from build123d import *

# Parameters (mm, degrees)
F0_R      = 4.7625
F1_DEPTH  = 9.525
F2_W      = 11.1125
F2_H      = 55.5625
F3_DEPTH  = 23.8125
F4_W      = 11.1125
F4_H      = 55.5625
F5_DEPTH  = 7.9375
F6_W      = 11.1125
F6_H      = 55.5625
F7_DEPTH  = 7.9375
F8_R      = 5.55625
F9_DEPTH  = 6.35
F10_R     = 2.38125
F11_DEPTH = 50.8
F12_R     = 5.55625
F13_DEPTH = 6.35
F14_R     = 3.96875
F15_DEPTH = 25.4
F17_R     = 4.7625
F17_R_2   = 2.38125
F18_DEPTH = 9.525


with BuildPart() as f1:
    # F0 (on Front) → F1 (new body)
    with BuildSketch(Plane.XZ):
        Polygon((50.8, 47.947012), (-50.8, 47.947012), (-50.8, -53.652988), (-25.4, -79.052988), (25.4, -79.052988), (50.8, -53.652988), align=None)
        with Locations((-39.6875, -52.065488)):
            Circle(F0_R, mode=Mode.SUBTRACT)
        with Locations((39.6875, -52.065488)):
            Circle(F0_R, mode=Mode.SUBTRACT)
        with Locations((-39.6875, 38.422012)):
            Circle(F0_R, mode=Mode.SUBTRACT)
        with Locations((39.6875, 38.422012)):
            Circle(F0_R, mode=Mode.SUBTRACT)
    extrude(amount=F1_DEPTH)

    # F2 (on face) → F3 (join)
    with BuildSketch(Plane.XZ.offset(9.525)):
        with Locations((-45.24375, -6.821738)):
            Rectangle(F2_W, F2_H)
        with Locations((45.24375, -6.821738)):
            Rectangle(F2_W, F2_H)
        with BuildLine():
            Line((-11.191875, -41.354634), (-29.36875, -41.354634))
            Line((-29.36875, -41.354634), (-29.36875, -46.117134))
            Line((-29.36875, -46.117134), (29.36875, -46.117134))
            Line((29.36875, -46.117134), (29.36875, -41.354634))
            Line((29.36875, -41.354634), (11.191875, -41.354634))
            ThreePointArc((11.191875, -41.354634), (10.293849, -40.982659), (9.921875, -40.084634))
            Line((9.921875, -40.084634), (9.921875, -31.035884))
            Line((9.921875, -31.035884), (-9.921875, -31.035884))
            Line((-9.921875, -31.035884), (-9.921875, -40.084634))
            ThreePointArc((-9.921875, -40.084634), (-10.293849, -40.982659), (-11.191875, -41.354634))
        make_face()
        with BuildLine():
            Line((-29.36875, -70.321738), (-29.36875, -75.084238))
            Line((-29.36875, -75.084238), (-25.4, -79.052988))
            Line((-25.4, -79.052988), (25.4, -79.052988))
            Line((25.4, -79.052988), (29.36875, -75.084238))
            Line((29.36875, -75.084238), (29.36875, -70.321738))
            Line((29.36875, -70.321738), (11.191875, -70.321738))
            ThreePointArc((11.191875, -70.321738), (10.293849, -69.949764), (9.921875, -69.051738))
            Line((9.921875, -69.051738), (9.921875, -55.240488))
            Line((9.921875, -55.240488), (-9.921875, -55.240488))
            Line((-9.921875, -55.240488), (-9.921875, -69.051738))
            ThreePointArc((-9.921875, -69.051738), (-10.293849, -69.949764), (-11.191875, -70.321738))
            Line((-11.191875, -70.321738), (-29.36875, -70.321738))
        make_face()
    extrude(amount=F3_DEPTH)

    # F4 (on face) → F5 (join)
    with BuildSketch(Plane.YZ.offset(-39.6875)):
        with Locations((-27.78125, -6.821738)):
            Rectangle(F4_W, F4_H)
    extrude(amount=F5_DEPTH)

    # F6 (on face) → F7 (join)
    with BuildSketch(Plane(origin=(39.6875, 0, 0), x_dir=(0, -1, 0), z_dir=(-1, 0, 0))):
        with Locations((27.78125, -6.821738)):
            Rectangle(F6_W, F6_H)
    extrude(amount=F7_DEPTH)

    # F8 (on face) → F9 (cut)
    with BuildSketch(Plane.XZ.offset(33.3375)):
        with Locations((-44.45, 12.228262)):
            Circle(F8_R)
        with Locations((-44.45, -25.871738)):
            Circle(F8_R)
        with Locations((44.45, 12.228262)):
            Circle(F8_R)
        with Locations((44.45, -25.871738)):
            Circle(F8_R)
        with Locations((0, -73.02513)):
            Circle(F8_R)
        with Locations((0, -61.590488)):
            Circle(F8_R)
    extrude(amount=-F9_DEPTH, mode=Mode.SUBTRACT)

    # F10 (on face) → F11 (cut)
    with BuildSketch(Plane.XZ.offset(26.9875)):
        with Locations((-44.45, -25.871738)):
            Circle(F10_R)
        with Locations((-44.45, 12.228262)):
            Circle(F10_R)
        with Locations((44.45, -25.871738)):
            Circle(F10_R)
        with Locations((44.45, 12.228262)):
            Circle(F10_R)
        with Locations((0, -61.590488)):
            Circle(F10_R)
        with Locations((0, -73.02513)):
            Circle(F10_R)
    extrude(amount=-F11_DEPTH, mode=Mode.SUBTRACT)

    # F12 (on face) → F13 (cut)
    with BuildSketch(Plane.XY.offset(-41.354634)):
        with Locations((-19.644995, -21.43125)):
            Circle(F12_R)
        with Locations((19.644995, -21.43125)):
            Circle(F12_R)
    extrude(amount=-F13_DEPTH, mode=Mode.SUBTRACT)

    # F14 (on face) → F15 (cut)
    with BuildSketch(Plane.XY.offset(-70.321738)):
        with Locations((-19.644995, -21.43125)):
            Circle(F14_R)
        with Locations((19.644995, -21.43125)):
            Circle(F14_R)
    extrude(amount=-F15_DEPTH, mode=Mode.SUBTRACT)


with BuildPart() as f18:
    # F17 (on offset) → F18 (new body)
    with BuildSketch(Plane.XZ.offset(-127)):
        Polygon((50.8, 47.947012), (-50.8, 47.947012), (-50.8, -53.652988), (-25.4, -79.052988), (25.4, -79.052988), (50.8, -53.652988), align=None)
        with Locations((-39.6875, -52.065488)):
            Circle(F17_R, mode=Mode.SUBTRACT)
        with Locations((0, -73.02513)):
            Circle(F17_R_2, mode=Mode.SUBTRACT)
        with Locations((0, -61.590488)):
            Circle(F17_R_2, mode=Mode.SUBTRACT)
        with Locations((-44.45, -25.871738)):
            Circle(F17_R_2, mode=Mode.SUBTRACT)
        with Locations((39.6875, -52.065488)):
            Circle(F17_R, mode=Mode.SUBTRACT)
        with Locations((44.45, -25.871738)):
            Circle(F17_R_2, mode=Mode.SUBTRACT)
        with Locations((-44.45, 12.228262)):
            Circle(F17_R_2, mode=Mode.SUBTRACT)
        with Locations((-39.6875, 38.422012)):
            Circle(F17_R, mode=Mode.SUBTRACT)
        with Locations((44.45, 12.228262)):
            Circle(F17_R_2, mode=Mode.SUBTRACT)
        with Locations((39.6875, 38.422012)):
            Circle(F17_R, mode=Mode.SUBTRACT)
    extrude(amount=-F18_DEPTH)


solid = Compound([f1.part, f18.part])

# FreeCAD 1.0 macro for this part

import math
import FreeCAD as App
import Part
import Sketcher

V = App.Vector
Q = App.Units.Quantity

doc = App.newDocument("Part")
body = doc.addObject("PartDesign::Body", "Body")

sketch1 = body.newObject("Sketcher::SketchObject", "Sketch")
sketch1.AttachmentSupport = (doc.getObject("XZ_Plane"), [""])
sketch1.MapMode = "FlatFace"
sketch1.addGeometry([
    Part.LineSegment(V(50.8, 47.9, 0), V(-50.8, 47.9, 0)),
    Part.LineSegment(V(-50.8, 47.9, 0), V(-50.8, -53.7, 0)),
    Part.LineSegment(V(-50.8, -53.7, 0), V(-25.4, -79.1, 0)),
    Part.LineSegment(V(-25.4, -79.1, 0), V(25.4, -79.1, 0)),
    Part.LineSegment(V(25.4, -79.1, 0), V(50.8, -53.7, 0)),
    Part.LineSegment(V(50.8, -53.7, 0), V(50.8, 47.9, 0)),
    Part.Circle(V(-39.7, -52.1, 0), V(0, 0, 1), 4.8),
    Part.Circle(V(39.7, -52.1, 0), V(0, 0, 1), 4.8),
    Part.Circle(V(-39.7, 38.4, 0), V(0, 0, 1), 4.8),
    Part.Circle(V(39.7, 38.4, 0), V(0, 0, 1), 4.8),
], False)
sketch1.addConstraint([
    Sketcher.Constraint("Coincident", 0, 2, 1, 1),
    Sketcher.Constraint("Coincident", 1, 2, 2, 1),
    Sketcher.Constraint("Coincident", 2, 2, 3, 1),
    Sketcher.Constraint("Coincident", 3, 2, 4, 1),
    Sketcher.Constraint("Coincident", 4, 2, 5, 1),
    Sketcher.Constraint("Coincident", 5, 2, 0, 1),
    Sketcher.Constraint("Horizontal", 0),
    Sketcher.Constraint("Vertical", 1),
    Sketcher.Constraint("Horizontal", 3),
    Sketcher.Constraint("Vertical", 5),
    Sketcher.Constraint("Equal", 6, 7),
    Sketcher.Constraint("Equal", 7, 8),
    Sketcher.Constraint("Equal", 8, 9),
    Sketcher.Constraint("Symmetric", 6, 3, 7, 3, -2),
    Sketcher.Constraint("Symmetric", 8, 3, 9, 3, -2),
    Sketcher.Constraint("Symmetric", 1, 2, 4, 2, -2),
    Sketcher.Constraint("Perpendicular", 2, 4),
    Sketcher.Constraint("Vertical", 6, 3, 8, 3),
    Sketcher.Constraint("Equal", 0, 1),
    Sketcher.Constraint("Equal", 2, 4),
    Sketcher.Constraint("DistanceX", 0, 2, 0, 1, Q("4 in")),
    Sketcher.Constraint("DistanceX", 3, 1, 3, 2, Q("2 in")),
    Sketcher.Constraint("Diameter", 6, Q("0.375 in")),
    Sketcher.Constraint("DistanceX", 6, 3, -1, 1, Q("1.5625 in")),
    Sketcher.Constraint("DistanceY", 6, 3, 8, 3, Q("3.5625 in")),
    Sketcher.Constraint("DistanceY", 8, 3, 0, 2, Q("0.375 in")),
    Sketcher.Constraint("DistanceY", 6, 3, -1, 1, 52.065488),
])
pad1 = body.newObject("PartDesign::Pad", "Pad")
pad1.Profile = sketch1
pad1.Length = Q("0.375 in")

sketch2 = body.newObject("Sketcher::SketchObject", "Sketch001")
sketch2.AttachmentSupport = (doc.getObject("XZ_Plane"), [""])
sketch2.MapMode = "FlatFace"
sketch2.AttachmentOffset = App.Placement(V(0, 0, 0.375 * 25.4), App.Rotation())
sketch2.addGeometry([
    Part.LineSegment(V(-50.8, 21, 0), V(-50.8, -34.6, 0)),
    Part.LineSegment(V(-50.8, -34.6, 0), V(-39.7, -34.6, 0)),
    Part.LineSegment(V(-39.7, -34.6, 0), V(-39.7, 21, 0)),
    Part.LineSegment(V(-39.7, 21, 0), V(-50.8, 21, 0)),
    Part.LineSegment(V(39.7, 21, 0), V(39.7, -34.6, 0)),
    Part.LineSegment(V(39.7, -34.6, 0), V(50.8, -34.6, 0)),
    Part.LineSegment(V(50.8, -34.6, 0), V(50.8, 21, 0)),
    Part.LineSegment(V(50.8, 21, 0), V(39.7, 21, 0)),
    Part.LineSegment(V(-11.2, -41.4, 0), V(-29.4, -41.4, 0)),
    Part.LineSegment(V(-29.4, -41.4, 0), V(-29.4, -46.1, 0)),
    Part.LineSegment(V(-29.4, -46.1, 0), V(29.4, -46.1, 0)),
    Part.LineSegment(V(29.4, -46.1, 0), V(29.4, -41.4, 0)),
    Part.LineSegment(V(29.4, -41.4, 0), V(11.2, -41.4, 0)),
    Part.ArcOfCircle(Part.Circle(V(11.2, -40.1, 0), V(0, 0, 1), 1.3), math.radians(-180), math.radians(-90)),
    Part.LineSegment(V(9.9, -40.1, 0), V(9.9, -31, 0)),
    Part.LineSegment(V(9.9, -31, 0), V(-9.9, -31, 0)),
    Part.LineSegment(V(-9.9, -31, 0), V(-9.9, -40.1, 0)),
    Part.ArcOfCircle(Part.Circle(V(-11.2, -40.1, 0), V(0, 0, 1), 1.3), math.radians(-90), math.radians(0)),
    Part.LineSegment(V(-29.4, -70.3, 0), V(-29.4, -75.1, 0)),
    Part.LineSegment(V(-29.4, -75.1, 0), V(-25.4, -79.1, 0)),
    Part.LineSegment(V(-25.4, -79.1, 0), V(25.4, -79.1, 0)),
    Part.LineSegment(V(25.4, -79.1, 0), V(29.4, -75.1, 0)),
    Part.LineSegment(V(29.4, -75.1, 0), V(29.4, -70.3, 0)),
    Part.LineSegment(V(29.4, -70.3, 0), V(11.2, -70.3, 0)),
    Part.ArcOfCircle(Part.Circle(V(11.2, -69.1, 0), V(0, 0, 1), 1.3), math.radians(180), math.radians(270)),
    Part.LineSegment(V(9.9, -69.1, 0), V(9.9, -55.2, 0)),
    Part.LineSegment(V(9.9, -55.2, 0), V(-9.9, -55.2, 0)),
    Part.LineSegment(V(-9.9, -55.2, 0), V(-9.9, -69.1, 0)),
    Part.ArcOfCircle(Part.Circle(V(-11.2, -69.1, 0), V(0, 0, 1), 1.3), math.radians(-90), math.radians(0)),
    Part.LineSegment(V(-11.2, -70.3, 0), V(-29.4, -70.3, 0)),
], False)
sketch2.addConstraint([
    Sketcher.Constraint("Coincident", 0, 2, 1, 1),
    Sketcher.Constraint("Coincident", 1, 2, 2, 1),
    Sketcher.Constraint("Coincident", 2, 2, 3, 1),
    Sketcher.Constraint("Coincident", 3, 2, 0, 1),
    Sketcher.Constraint("Coincident", 4, 2, 5, 1),
    Sketcher.Constraint("Coincident", 5, 2, 6, 1),
    Sketcher.Constraint("Coincident", 6, 2, 7, 1),
    Sketcher.Constraint("Coincident", 7, 2, 4, 1),
    Sketcher.Constraint("Coincident", 8, 2, 9, 1),
    Sketcher.Constraint("Coincident", 9, 2, 10, 1),
    Sketcher.Constraint("Coincident", 10, 2, 11, 1),
    Sketcher.Constraint("Coincident", 11, 2, 12, 1),
    Sketcher.Constraint("Tangent", 12, 2, 13, 2),
    Sketcher.Constraint("Tangent", 13, 1, 14, 1),
    Sketcher.Constraint("Coincident", 14, 2, 15, 1),
    Sketcher.Constraint("Coincident", 15, 2, 16, 1),
    Sketcher.Constraint("Tangent", 16, 2, 17, 2),
    Sketcher.Constraint("Tangent", 17, 1, 8, 1),
    Sketcher.Constraint("Coincident", 18, 2, 19, 1),
    Sketcher.Constraint("Coincident", 19, 2, 20, 1),
    Sketcher.Constraint("Coincident", 20, 2, 21, 1),
    Sketcher.Constraint("Coincident", 21, 2, 22, 1),
    Sketcher.Constraint("Coincident", 22, 2, 23, 1),
    Sketcher.Constraint("Tangent", 23, 2, 24, 2),
    Sketcher.Constraint("Tangent", 24, 1, 25, 1),
    Sketcher.Constraint("Coincident", 25, 2, 26, 1),
    Sketcher.Constraint("Coincident", 26, 2, 27, 1),
    Sketcher.Constraint("Tangent", 27, 2, 28, 2),
    Sketcher.Constraint("Tangent", 28, 1, 29, 1),
    Sketcher.Constraint("Coincident", 29, 2, 18, 1),
    Sketcher.Constraint("Vertical", 0),
    Sketcher.Constraint("Horizontal", 1),
    Sketcher.Constraint("Vertical", 2),
    Sketcher.Constraint("Horizontal", 3),
    Sketcher.Constraint("Vertical", 4),
    Sketcher.Constraint("Horizontal", 5),
    Sketcher.Constraint("Vertical", 6),
    Sketcher.Constraint("Horizontal", 7),
    Sketcher.Constraint("Horizontal", 8),
    Sketcher.Constraint("Vertical", 9),
    Sketcher.Constraint("Horizontal", 10),
    Sketcher.Constraint("Vertical", 11),
    Sketcher.Constraint("Horizontal", 12),
    Sketcher.Constraint("Vertical", 14),
    Sketcher.Constraint("Horizontal", 15),
    Sketcher.Constraint("Vertical", 16),
    Sketcher.Constraint("Vertical", 18),
    Sketcher.Constraint("Horizontal", 20),
    Sketcher.Constraint("Vertical", 22),
    Sketcher.Constraint("Horizontal", 23),
    Sketcher.Constraint("Vertical", 25),
    Sketcher.Constraint("Horizontal", 26),
    Sketcher.Constraint("Vertical", 27),
    Sketcher.Constraint("Horizontal", 29),
    Sketcher.Constraint("Equal", 13, 17),
    Sketcher.Constraint("Equal", 17, 24),
    Sketcher.Constraint("Equal", 24, 28),
    Sketcher.Constraint("Symmetric", 13, 3, 17, 3, -2),
    Sketcher.Constraint("Symmetric", 24, 3, 28, 3, -2),
    Sketcher.Constraint("Symmetric", 1, 2, 4, 2, -2),
    Sketcher.Constraint("Symmetric", 3, 2, 6, 2, -2),
    Sketcher.Constraint("Symmetric", 18, 2, 21, 2, -2),
    Sketcher.Constraint("Perpendicular", 19, 21),
    Sketcher.Constraint("Vertical", 13, 3, 24, 3),
    Sketcher.Constraint("Vertical", 9, 2, 18, 2),
    Sketcher.Constraint("Vertical", 11, 2, 21, 2),
    Sketcher.Constraint("Equal", 11, 18),
    Sketcher.Constraint("Equal", 19, 21),
    Sketcher.Constraint("DistanceX", 20, 1, 20, 2, Q("2 in")),
    Sketcher.Constraint("Radius", 13, Q("0.05 in")),
    Sketcher.Constraint("DistanceX", 0, 2, -1, 1, Q("2 in")),
    Sketcher.Constraint("DistanceX", 1, 1, 1, 2, Q("0.4375 in")),
    Sketcher.Constraint("DistanceX", 10, 1, 10, 2, Q("2.3125 in")),
    Sketcher.Constraint("DistanceX", 15, 2, 15, 1, Q("0.78125 in")),
    Sketcher.Constraint("DistanceY", 0, 2, 0, 1, Q("2.1875 in")),
    Sketcher.Constraint("DistanceY", 9, 2, 9, 1, Q("0.1875 in")),
    Sketcher.Constraint("DistanceY", 12, 2, 14, 2, Q("0.40625 in")),
    Sketcher.Constraint("DistanceY", 23, 2, 25, 2, Q("0.59375 in")),
    Sketcher.Constraint("DistanceY", 24, 3, -1, 1, 69.051739),
    Sketcher.Constraint("DistanceY", 0, 2, -1, 1, 34.602988),
    Sketcher.Constraint("DistanceY", 13, 3, -1, 1, 40.084634),
])
pad2 = body.newObject("PartDesign::Pad", "Pad001")
pad2.Profile = sketch2
pad2.Length = Q("0.9375 in")

sketch3 = body.newObject("Sketcher::SketchObject", "Sketch002")
sketch3.AttachmentSupport = (doc.getObject("YZ_Plane"), [""])
sketch3.MapMode = "FlatFace"
sketch3.AttachmentOffset = App.Placement(V(0, 0, -1.5625 * 25.4), App.Rotation())
sketch3.addGeometry([
    Part.LineSegment(V(-33, 21, 0), V(-33, -35, 0)),
    Part.LineSegment(V(-33, -35, 0), V(-22, -35, 0)),
    Part.LineSegment(V(-22, -35, 0), V(-22, 21, 0)),
    Part.LineSegment(V(-22, 21, 0), V(-33, 21, 0)),
], False)
sketch3.addConstraint([
    Sketcher.Constraint("Coincident", 0, 2, 1, 1),
    Sketcher.Constraint("Coincident", 1, 2, 2, 1),
    Sketcher.Constraint("Coincident", 2, 2, 3, 1),
    Sketcher.Constraint("Coincident", 3, 2, 0, 1),
    Sketcher.Constraint("Vertical", 0),
    Sketcher.Constraint("Horizontal", 1),
    Sketcher.Constraint("Vertical", 2),
    Sketcher.Constraint("Horizontal", 3),
    Sketcher.Constraint("DistanceX", 1, 1, 1, 2, Q("0.4375 in")),
    Sketcher.Constraint("DistanceY", 0, 2, 0, 1, Q("2.1875 in")),
    Sketcher.Constraint("DistanceX", 0, 2, -1, 1, Q("1.3125 in")),
    Sketcher.Constraint("DistanceY", 0, 2, -1, 1, 34.602988),
])
pad3 = body.newObject("PartDesign::Pad", "Pad002")
pad3.Profile = sketch3
pad3.Length = Q("0.3125 in")

sketch4 = body.newObject("Sketcher::SketchObject", "Sketch003")
sketch4.AttachmentSupport = (doc.getObject("YZ_Plane"), [""])
sketch4.MapMode = "FlatFace"
sketch4.AttachmentOffset = App.Placement(V(0, 0, 1.5625 * 25.4), App.Rotation())
sketch4.addGeometry([
    Part.LineSegment(V(-22, 21, 0), V(-22, -35, 0)),
    Part.LineSegment(V(-22, -35, 0), V(-33, -35, 0)),
    Part.LineSegment(V(-33, -35, 0), V(-33, 21, 0)),
    Part.LineSegment(V(-33, 21, 0), V(-22, 21, 0)),
], False)
sketch4.addConstraint([
    Sketcher.Constraint("Coincident", 0, 2, 1, 1),
    Sketcher.Constraint("Coincident", 1, 2, 2, 1),
    Sketcher.Constraint("Coincident", 2, 2, 3, 1),
    Sketcher.Constraint("Coincident", 3, 2, 0, 1),
    Sketcher.Constraint("Vertical", 0),
    Sketcher.Constraint("Horizontal", 1),
    Sketcher.Constraint("Vertical", 2),
    Sketcher.Constraint("Horizontal", 3),
    Sketcher.Constraint("DistanceX", 1, 2, 1, 1, Q("0.4375 in")),
    Sketcher.Constraint("DistanceY", 0, 2, 0, 1, Q("2.1875 in")),
    Sketcher.Constraint("DistanceX", 0, 2, -1, 1, Q("0.875 in")),
    Sketcher.Constraint("DistanceY", 0, 2, -1, 1, 34.602988),
])
pad4 = body.newObject("PartDesign::Pad", "Pad003")
pad4.Profile = sketch4
pad4.Length = Q("0.3125 in")
pad4.Reversed = True

sketch5 = body.newObject("Sketcher::SketchObject", "Sketch004")
sketch5.AttachmentSupport = (doc.getObject("XZ_Plane"), [""])
sketch5.MapMode = "FlatFace"
sketch5.AttachmentOffset = App.Placement(V(0, 0, 1.3125 * 25.4), App.Rotation())
sketch5.addGeometry([
    Part.Circle(V(-44, 12, 0), V(0, 0, 1), 6),
    Part.Circle(V(-44, -26, 0), V(0, 0, 1), 6),
    Part.Circle(V(44, 12, 0), V(0, 0, 1), 6),
    Part.Circle(V(44, -26, 0), V(0, 0, 1), 6),
    Part.Circle(V(0, -73, 0), V(0, 0, 1), 6),
    Part.Circle(V(0, -62, 0), V(0, 0, 1), 6),
], False)
sketch5.addConstraint([
    Sketcher.Constraint("Equal", 0, 1),
    Sketcher.Constraint("Equal", 1, 2),
    Sketcher.Constraint("Equal", 2, 3),
    Sketcher.Constraint("Equal", 3, 4),
    Sketcher.Constraint("Equal", 4, 5),
    Sketcher.Constraint("Symmetric", 0, 3, 2, 3, -2),
    Sketcher.Constraint("Symmetric", 1, 3, 3, 3, -2),
    Sketcher.Constraint("PointOnObject", 4, 3, -2),
    Sketcher.Constraint("PointOnObject", 5, 3, -2),
    Sketcher.Constraint("Vertical", 0, 3, 1, 3),
    Sketcher.Constraint("Diameter", 0, Q("0.4375 in")),
    Sketcher.Constraint("DistanceY", 1, 3, 0, 3, Q("1.5 in")),
    Sketcher.Constraint("DistanceX", 0, 3, 2, 3, Q("3.5 in")),
    Sketcher.Constraint("DistanceY", 5, 3, 1, 3, Q("1.40625 in")),
    Sketcher.Constraint("DistanceY", 1, 3, -1, 1, 25.871738),
    Sketcher.Constraint("DistanceY", 4, 3, -1, 1, 73.02513),
])
pocket1 = body.newObject("PartDesign::Pocket", "Pocket")
pocket1.Profile = sketch5
pocket1.Length = Q("0.25 in")

sketch6 = body.newObject("Sketcher::SketchObject", "Sketch005")
sketch6.AttachmentSupport = (doc.getObject("XZ_Plane"), [""])
sketch6.MapMode = "FlatFace"
sketch6.AttachmentOffset = App.Placement(V(0, 0, 1.0625 * 25.4), App.Rotation())
sketch6.addGeometry([
    Part.Circle(V(-44.5, -25.9, 0), V(0, 0, 1), 2.4),
    Part.Circle(V(-44.5, 12.2, 0), V(0, 0, 1), 2.4),
    Part.Circle(V(44.5, -25.9, 0), V(0, 0, 1), 2.4),
    Part.Circle(V(44.5, 12.2, 0), V(0, 0, 1), 2.4),
    Part.Circle(V(0, -61.6, 0), V(0, 0, 1), 2.4),
    Part.Circle(V(0, -73, 0), V(0, 0, 1), 2.4),
], False)
sketch6.addConstraint([
    Sketcher.Constraint("Equal", 0, 1),
    Sketcher.Constraint("Equal", 1, 2),
    Sketcher.Constraint("Equal", 2, 3),
    Sketcher.Constraint("Equal", 3, 4),
    Sketcher.Constraint("Equal", 4, 5),
    Sketcher.Constraint("Symmetric", 0, 3, 2, 3, -2),
    Sketcher.Constraint("Symmetric", 1, 3, 3, 3, -2),
    Sketcher.Constraint("PointOnObject", 4, 3, -2),
    Sketcher.Constraint("PointOnObject", 5, 3, -2),
    Sketcher.Constraint("Vertical", 0, 3, 1, 3),
    Sketcher.Constraint("Diameter", 0, Q("0.1875 in")),
    Sketcher.Constraint("DistanceY", 0, 3, 1, 3, Q("1.5 in")),
    Sketcher.Constraint("DistanceX", 0, 3, 2, 3, Q("3.5 in")),
    Sketcher.Constraint("DistanceY", 4, 3, 0, 3, Q("1.40625 in")),
    Sketcher.Constraint("DistanceY", 0, 3, -1, 1, 25.871738),
    Sketcher.Constraint("DistanceY", 5, 3, -1, 1, 73.02513),
])
pocket2 = body.newObject("PartDesign::Pocket", "Pocket001")
pocket2.Profile = sketch6
pocket2.Length = Q("2 in")

sketch7 = body.newObject("Sketcher::SketchObject", "Sketch006")
sketch7.AttachmentSupport = (doc.getObject("XY_Plane"), [""])
sketch7.MapMode = "FlatFace"
sketch7.AttachmentOffset = App.Placement(V(0, 0, -41.354634), App.Rotation())
sketch7.addGeometry([
    Part.Circle(V(-20, -21, 0), V(0, 0, 1), 6),
    Part.Circle(V(20, -21, 0), V(0, 0, 1), 6),
], False)
sketch7.addConstraint([
    Sketcher.Constraint("Equal", 0, 1),
    Sketcher.Constraint("Symmetric", 0, 3, 1, 3, -2),
    Sketcher.Constraint("Diameter", 0, Q("0.4375 in")),
    Sketcher.Constraint("DistanceY", 0, 3, -1, 1, Q("0.84375 in")),
    Sketcher.Constraint("DistanceX", 0, 3, 1, 3, 39.28999),
])
pocket3 = body.newObject("PartDesign::Pocket", "Pocket002")
pocket3.Profile = sketch7
pocket3.Length = Q("0.25 in")

sketch8 = body.newObject("Sketcher::SketchObject", "Sketch007")
sketch8.AttachmentSupport = (doc.getObject("XY_Plane"), [""])
sketch8.MapMode = "FlatFace"
sketch8.AttachmentOffset = App.Placement(V(0, 0, -70.321738), App.Rotation())
sketch8.addGeometry([
    Part.Circle(V(-19.6, -21.4, 0), V(0, 0, 1), 4),
    Part.Circle(V(19.6, -21.4, 0), V(0, 0, 1), 4),
], False)
sketch8.addConstraint([
    Sketcher.Constraint("Equal", 0, 1),
    Sketcher.Constraint("Symmetric", 0, 3, 1, 3, -2),
    Sketcher.Constraint("Diameter", 0, Q("0.3125 in")),
    Sketcher.Constraint("DistanceY", 0, 3, -1, 1, Q("0.84375 in")),
    Sketcher.Constraint("DistanceX", 0, 3, 1, 3, 39.28999),
])
pocket4 = body.newObject("PartDesign::Pocket", "Pocket003")
pocket4.Profile = sketch8
pocket4.Length = Q("1 in")
body2 = doc.addObject("PartDesign::Body", "Body001")

sketch9 = body2.newObject("Sketcher::SketchObject", "Sketch008")
sketch9.AttachmentSupport = (doc.getObject("XZ_Plane001"), [""])
sketch9.MapMode = "FlatFace"
sketch9.AttachmentOffset = App.Placement(V(0, 0, -5 * 25.4), App.Rotation())
sketch9.addGeometry([
    Part.LineSegment(V(50.8, 47.9, 0), V(-50.8, 47.9, 0)),
    Part.LineSegment(V(-50.8, 47.9, 0), V(-50.8, -53.7, 0)),
    Part.LineSegment(V(-50.8, -53.7, 0), V(-25.4, -79.1, 0)),
    Part.LineSegment(V(-25.4, -79.1, 0), V(25.4, -79.1, 0)),
    Part.LineSegment(V(25.4, -79.1, 0), V(50.8, -53.7, 0)),
    Part.LineSegment(V(50.8, -53.7, 0), V(50.8, 47.9, 0)),
    Part.Circle(V(-39.7, -52.1, 0), V(0, 0, 1), 4.8),
    Part.Circle(V(-44.5, -25.9, 0), V(0, 0, 1), 2.4),
    Part.Circle(V(0, -73, 0), V(0, 0, 1), 2.4),
    Part.Circle(V(0, -61.6, 0), V(0, 0, 1), 2.4),
    Part.Circle(V(39.7, -52.1, 0), V(0, 0, 1), 4.8),
    Part.Circle(V(44.5, -25.9, 0), V(0, 0, 1), 2.4),
    Part.Circle(V(-44.5, 12.2, 0), V(0, 0, 1), 2.4),
    Part.Circle(V(-39.7, 38.4, 0), V(0, 0, 1), 4.8),
    Part.Circle(V(44.5, 12.2, 0), V(0, 0, 1), 2.4),
    Part.Circle(V(39.7, 38.4, 0), V(0, 0, 1), 4.8),
], False)
sketch9.addConstraint([
    Sketcher.Constraint("Coincident", 0, 2, 1, 1),
    Sketcher.Constraint("Coincident", 1, 2, 2, 1),
    Sketcher.Constraint("Coincident", 2, 2, 3, 1),
    Sketcher.Constraint("Coincident", 3, 2, 4, 1),
    Sketcher.Constraint("Coincident", 4, 2, 5, 1),
    Sketcher.Constraint("Coincident", 5, 2, 0, 1),
    Sketcher.Constraint("Horizontal", 0),
    Sketcher.Constraint("Vertical", 1),
    Sketcher.Constraint("Horizontal", 3),
    Sketcher.Constraint("Vertical", 5),
    Sketcher.Constraint("Equal", 7, 8),
    Sketcher.Constraint("Equal", 8, 9),
    Sketcher.Constraint("Equal", 6, 10),
    Sketcher.Constraint("Equal", 9, 11),
    Sketcher.Constraint("Equal", 11, 12),
    Sketcher.Constraint("Equal", 10, 13),
    Sketcher.Constraint("Equal", 12, 14),
    Sketcher.Constraint("Equal", 13, 15),
    Sketcher.Constraint("Symmetric", 6, 3, 10, 3, -2),
    Sketcher.Constraint("Symmetric", 7, 3, 11, 3, -2),
    Sketcher.Constraint("Symmetric", 12, 3, 14, 3, -2),
    Sketcher.Constraint("Symmetric", 13, 3, 15, 3, -2),
    Sketcher.Constraint("Symmetric", 1, 2, 4, 2, -2),
    Sketcher.Constraint("PointOnObject", 8, 3, -2),
    Sketcher.Constraint("PointOnObject", 9, 3, -2),
    Sketcher.Constraint("Perpendicular", 2, 4),
    Sketcher.Constraint("Vertical", 7, 3, 12, 3),
    Sketcher.Constraint("Vertical", 6, 3, 13, 3),
    Sketcher.Constraint("Equal", 0, 1),
    Sketcher.Constraint("Equal", 2, 4),
    Sketcher.Constraint("DistanceX", 0, 2, 0, 1, Q("4 in")),
    Sketcher.Constraint("DistanceX", 3, 1, 3, 2, Q("2 in")),
    Sketcher.Constraint("Diameter", 6, Q("0.375 in")),
    Sketcher.Constraint("Diameter", 7, Q("0.1875 in")),
    Sketcher.Constraint("DistanceX", 7, 3, 11, 3, Q("3.5 in")),
    Sketcher.Constraint("DistanceY", 7, 3, 12, 3, Q("1.5 in")),
    Sketcher.Constraint("DistanceX", 6, 3, -1, 1, Q("1.5625 in")),
    Sketcher.Constraint("DistanceY", 6, 3, 7, 3, Q("1.03125 in")),
    Sketcher.Constraint("DistanceY", 9, 3, 6, 3, Q("0.375 in")),
    Sketcher.Constraint("DistanceY", 12, 3, 13, 3, Q("1.03125 in")),
    Sketcher.Constraint("DistanceY", 13, 3, 0, 2, Q("0.375 in")),
    Sketcher.Constraint("DistanceY", 6, 3, -1, 1, 52.065488),
    Sketcher.Constraint("DistanceY", 8, 3, -1, 1, 73.02513),
])
pad5 = body2.newObject("PartDesign::Pad", "Pad004")
pad5.Profile = sketch9
pad5.Length = Q("0.375 in")
pad5.Reversed = True

doc.recompute()
